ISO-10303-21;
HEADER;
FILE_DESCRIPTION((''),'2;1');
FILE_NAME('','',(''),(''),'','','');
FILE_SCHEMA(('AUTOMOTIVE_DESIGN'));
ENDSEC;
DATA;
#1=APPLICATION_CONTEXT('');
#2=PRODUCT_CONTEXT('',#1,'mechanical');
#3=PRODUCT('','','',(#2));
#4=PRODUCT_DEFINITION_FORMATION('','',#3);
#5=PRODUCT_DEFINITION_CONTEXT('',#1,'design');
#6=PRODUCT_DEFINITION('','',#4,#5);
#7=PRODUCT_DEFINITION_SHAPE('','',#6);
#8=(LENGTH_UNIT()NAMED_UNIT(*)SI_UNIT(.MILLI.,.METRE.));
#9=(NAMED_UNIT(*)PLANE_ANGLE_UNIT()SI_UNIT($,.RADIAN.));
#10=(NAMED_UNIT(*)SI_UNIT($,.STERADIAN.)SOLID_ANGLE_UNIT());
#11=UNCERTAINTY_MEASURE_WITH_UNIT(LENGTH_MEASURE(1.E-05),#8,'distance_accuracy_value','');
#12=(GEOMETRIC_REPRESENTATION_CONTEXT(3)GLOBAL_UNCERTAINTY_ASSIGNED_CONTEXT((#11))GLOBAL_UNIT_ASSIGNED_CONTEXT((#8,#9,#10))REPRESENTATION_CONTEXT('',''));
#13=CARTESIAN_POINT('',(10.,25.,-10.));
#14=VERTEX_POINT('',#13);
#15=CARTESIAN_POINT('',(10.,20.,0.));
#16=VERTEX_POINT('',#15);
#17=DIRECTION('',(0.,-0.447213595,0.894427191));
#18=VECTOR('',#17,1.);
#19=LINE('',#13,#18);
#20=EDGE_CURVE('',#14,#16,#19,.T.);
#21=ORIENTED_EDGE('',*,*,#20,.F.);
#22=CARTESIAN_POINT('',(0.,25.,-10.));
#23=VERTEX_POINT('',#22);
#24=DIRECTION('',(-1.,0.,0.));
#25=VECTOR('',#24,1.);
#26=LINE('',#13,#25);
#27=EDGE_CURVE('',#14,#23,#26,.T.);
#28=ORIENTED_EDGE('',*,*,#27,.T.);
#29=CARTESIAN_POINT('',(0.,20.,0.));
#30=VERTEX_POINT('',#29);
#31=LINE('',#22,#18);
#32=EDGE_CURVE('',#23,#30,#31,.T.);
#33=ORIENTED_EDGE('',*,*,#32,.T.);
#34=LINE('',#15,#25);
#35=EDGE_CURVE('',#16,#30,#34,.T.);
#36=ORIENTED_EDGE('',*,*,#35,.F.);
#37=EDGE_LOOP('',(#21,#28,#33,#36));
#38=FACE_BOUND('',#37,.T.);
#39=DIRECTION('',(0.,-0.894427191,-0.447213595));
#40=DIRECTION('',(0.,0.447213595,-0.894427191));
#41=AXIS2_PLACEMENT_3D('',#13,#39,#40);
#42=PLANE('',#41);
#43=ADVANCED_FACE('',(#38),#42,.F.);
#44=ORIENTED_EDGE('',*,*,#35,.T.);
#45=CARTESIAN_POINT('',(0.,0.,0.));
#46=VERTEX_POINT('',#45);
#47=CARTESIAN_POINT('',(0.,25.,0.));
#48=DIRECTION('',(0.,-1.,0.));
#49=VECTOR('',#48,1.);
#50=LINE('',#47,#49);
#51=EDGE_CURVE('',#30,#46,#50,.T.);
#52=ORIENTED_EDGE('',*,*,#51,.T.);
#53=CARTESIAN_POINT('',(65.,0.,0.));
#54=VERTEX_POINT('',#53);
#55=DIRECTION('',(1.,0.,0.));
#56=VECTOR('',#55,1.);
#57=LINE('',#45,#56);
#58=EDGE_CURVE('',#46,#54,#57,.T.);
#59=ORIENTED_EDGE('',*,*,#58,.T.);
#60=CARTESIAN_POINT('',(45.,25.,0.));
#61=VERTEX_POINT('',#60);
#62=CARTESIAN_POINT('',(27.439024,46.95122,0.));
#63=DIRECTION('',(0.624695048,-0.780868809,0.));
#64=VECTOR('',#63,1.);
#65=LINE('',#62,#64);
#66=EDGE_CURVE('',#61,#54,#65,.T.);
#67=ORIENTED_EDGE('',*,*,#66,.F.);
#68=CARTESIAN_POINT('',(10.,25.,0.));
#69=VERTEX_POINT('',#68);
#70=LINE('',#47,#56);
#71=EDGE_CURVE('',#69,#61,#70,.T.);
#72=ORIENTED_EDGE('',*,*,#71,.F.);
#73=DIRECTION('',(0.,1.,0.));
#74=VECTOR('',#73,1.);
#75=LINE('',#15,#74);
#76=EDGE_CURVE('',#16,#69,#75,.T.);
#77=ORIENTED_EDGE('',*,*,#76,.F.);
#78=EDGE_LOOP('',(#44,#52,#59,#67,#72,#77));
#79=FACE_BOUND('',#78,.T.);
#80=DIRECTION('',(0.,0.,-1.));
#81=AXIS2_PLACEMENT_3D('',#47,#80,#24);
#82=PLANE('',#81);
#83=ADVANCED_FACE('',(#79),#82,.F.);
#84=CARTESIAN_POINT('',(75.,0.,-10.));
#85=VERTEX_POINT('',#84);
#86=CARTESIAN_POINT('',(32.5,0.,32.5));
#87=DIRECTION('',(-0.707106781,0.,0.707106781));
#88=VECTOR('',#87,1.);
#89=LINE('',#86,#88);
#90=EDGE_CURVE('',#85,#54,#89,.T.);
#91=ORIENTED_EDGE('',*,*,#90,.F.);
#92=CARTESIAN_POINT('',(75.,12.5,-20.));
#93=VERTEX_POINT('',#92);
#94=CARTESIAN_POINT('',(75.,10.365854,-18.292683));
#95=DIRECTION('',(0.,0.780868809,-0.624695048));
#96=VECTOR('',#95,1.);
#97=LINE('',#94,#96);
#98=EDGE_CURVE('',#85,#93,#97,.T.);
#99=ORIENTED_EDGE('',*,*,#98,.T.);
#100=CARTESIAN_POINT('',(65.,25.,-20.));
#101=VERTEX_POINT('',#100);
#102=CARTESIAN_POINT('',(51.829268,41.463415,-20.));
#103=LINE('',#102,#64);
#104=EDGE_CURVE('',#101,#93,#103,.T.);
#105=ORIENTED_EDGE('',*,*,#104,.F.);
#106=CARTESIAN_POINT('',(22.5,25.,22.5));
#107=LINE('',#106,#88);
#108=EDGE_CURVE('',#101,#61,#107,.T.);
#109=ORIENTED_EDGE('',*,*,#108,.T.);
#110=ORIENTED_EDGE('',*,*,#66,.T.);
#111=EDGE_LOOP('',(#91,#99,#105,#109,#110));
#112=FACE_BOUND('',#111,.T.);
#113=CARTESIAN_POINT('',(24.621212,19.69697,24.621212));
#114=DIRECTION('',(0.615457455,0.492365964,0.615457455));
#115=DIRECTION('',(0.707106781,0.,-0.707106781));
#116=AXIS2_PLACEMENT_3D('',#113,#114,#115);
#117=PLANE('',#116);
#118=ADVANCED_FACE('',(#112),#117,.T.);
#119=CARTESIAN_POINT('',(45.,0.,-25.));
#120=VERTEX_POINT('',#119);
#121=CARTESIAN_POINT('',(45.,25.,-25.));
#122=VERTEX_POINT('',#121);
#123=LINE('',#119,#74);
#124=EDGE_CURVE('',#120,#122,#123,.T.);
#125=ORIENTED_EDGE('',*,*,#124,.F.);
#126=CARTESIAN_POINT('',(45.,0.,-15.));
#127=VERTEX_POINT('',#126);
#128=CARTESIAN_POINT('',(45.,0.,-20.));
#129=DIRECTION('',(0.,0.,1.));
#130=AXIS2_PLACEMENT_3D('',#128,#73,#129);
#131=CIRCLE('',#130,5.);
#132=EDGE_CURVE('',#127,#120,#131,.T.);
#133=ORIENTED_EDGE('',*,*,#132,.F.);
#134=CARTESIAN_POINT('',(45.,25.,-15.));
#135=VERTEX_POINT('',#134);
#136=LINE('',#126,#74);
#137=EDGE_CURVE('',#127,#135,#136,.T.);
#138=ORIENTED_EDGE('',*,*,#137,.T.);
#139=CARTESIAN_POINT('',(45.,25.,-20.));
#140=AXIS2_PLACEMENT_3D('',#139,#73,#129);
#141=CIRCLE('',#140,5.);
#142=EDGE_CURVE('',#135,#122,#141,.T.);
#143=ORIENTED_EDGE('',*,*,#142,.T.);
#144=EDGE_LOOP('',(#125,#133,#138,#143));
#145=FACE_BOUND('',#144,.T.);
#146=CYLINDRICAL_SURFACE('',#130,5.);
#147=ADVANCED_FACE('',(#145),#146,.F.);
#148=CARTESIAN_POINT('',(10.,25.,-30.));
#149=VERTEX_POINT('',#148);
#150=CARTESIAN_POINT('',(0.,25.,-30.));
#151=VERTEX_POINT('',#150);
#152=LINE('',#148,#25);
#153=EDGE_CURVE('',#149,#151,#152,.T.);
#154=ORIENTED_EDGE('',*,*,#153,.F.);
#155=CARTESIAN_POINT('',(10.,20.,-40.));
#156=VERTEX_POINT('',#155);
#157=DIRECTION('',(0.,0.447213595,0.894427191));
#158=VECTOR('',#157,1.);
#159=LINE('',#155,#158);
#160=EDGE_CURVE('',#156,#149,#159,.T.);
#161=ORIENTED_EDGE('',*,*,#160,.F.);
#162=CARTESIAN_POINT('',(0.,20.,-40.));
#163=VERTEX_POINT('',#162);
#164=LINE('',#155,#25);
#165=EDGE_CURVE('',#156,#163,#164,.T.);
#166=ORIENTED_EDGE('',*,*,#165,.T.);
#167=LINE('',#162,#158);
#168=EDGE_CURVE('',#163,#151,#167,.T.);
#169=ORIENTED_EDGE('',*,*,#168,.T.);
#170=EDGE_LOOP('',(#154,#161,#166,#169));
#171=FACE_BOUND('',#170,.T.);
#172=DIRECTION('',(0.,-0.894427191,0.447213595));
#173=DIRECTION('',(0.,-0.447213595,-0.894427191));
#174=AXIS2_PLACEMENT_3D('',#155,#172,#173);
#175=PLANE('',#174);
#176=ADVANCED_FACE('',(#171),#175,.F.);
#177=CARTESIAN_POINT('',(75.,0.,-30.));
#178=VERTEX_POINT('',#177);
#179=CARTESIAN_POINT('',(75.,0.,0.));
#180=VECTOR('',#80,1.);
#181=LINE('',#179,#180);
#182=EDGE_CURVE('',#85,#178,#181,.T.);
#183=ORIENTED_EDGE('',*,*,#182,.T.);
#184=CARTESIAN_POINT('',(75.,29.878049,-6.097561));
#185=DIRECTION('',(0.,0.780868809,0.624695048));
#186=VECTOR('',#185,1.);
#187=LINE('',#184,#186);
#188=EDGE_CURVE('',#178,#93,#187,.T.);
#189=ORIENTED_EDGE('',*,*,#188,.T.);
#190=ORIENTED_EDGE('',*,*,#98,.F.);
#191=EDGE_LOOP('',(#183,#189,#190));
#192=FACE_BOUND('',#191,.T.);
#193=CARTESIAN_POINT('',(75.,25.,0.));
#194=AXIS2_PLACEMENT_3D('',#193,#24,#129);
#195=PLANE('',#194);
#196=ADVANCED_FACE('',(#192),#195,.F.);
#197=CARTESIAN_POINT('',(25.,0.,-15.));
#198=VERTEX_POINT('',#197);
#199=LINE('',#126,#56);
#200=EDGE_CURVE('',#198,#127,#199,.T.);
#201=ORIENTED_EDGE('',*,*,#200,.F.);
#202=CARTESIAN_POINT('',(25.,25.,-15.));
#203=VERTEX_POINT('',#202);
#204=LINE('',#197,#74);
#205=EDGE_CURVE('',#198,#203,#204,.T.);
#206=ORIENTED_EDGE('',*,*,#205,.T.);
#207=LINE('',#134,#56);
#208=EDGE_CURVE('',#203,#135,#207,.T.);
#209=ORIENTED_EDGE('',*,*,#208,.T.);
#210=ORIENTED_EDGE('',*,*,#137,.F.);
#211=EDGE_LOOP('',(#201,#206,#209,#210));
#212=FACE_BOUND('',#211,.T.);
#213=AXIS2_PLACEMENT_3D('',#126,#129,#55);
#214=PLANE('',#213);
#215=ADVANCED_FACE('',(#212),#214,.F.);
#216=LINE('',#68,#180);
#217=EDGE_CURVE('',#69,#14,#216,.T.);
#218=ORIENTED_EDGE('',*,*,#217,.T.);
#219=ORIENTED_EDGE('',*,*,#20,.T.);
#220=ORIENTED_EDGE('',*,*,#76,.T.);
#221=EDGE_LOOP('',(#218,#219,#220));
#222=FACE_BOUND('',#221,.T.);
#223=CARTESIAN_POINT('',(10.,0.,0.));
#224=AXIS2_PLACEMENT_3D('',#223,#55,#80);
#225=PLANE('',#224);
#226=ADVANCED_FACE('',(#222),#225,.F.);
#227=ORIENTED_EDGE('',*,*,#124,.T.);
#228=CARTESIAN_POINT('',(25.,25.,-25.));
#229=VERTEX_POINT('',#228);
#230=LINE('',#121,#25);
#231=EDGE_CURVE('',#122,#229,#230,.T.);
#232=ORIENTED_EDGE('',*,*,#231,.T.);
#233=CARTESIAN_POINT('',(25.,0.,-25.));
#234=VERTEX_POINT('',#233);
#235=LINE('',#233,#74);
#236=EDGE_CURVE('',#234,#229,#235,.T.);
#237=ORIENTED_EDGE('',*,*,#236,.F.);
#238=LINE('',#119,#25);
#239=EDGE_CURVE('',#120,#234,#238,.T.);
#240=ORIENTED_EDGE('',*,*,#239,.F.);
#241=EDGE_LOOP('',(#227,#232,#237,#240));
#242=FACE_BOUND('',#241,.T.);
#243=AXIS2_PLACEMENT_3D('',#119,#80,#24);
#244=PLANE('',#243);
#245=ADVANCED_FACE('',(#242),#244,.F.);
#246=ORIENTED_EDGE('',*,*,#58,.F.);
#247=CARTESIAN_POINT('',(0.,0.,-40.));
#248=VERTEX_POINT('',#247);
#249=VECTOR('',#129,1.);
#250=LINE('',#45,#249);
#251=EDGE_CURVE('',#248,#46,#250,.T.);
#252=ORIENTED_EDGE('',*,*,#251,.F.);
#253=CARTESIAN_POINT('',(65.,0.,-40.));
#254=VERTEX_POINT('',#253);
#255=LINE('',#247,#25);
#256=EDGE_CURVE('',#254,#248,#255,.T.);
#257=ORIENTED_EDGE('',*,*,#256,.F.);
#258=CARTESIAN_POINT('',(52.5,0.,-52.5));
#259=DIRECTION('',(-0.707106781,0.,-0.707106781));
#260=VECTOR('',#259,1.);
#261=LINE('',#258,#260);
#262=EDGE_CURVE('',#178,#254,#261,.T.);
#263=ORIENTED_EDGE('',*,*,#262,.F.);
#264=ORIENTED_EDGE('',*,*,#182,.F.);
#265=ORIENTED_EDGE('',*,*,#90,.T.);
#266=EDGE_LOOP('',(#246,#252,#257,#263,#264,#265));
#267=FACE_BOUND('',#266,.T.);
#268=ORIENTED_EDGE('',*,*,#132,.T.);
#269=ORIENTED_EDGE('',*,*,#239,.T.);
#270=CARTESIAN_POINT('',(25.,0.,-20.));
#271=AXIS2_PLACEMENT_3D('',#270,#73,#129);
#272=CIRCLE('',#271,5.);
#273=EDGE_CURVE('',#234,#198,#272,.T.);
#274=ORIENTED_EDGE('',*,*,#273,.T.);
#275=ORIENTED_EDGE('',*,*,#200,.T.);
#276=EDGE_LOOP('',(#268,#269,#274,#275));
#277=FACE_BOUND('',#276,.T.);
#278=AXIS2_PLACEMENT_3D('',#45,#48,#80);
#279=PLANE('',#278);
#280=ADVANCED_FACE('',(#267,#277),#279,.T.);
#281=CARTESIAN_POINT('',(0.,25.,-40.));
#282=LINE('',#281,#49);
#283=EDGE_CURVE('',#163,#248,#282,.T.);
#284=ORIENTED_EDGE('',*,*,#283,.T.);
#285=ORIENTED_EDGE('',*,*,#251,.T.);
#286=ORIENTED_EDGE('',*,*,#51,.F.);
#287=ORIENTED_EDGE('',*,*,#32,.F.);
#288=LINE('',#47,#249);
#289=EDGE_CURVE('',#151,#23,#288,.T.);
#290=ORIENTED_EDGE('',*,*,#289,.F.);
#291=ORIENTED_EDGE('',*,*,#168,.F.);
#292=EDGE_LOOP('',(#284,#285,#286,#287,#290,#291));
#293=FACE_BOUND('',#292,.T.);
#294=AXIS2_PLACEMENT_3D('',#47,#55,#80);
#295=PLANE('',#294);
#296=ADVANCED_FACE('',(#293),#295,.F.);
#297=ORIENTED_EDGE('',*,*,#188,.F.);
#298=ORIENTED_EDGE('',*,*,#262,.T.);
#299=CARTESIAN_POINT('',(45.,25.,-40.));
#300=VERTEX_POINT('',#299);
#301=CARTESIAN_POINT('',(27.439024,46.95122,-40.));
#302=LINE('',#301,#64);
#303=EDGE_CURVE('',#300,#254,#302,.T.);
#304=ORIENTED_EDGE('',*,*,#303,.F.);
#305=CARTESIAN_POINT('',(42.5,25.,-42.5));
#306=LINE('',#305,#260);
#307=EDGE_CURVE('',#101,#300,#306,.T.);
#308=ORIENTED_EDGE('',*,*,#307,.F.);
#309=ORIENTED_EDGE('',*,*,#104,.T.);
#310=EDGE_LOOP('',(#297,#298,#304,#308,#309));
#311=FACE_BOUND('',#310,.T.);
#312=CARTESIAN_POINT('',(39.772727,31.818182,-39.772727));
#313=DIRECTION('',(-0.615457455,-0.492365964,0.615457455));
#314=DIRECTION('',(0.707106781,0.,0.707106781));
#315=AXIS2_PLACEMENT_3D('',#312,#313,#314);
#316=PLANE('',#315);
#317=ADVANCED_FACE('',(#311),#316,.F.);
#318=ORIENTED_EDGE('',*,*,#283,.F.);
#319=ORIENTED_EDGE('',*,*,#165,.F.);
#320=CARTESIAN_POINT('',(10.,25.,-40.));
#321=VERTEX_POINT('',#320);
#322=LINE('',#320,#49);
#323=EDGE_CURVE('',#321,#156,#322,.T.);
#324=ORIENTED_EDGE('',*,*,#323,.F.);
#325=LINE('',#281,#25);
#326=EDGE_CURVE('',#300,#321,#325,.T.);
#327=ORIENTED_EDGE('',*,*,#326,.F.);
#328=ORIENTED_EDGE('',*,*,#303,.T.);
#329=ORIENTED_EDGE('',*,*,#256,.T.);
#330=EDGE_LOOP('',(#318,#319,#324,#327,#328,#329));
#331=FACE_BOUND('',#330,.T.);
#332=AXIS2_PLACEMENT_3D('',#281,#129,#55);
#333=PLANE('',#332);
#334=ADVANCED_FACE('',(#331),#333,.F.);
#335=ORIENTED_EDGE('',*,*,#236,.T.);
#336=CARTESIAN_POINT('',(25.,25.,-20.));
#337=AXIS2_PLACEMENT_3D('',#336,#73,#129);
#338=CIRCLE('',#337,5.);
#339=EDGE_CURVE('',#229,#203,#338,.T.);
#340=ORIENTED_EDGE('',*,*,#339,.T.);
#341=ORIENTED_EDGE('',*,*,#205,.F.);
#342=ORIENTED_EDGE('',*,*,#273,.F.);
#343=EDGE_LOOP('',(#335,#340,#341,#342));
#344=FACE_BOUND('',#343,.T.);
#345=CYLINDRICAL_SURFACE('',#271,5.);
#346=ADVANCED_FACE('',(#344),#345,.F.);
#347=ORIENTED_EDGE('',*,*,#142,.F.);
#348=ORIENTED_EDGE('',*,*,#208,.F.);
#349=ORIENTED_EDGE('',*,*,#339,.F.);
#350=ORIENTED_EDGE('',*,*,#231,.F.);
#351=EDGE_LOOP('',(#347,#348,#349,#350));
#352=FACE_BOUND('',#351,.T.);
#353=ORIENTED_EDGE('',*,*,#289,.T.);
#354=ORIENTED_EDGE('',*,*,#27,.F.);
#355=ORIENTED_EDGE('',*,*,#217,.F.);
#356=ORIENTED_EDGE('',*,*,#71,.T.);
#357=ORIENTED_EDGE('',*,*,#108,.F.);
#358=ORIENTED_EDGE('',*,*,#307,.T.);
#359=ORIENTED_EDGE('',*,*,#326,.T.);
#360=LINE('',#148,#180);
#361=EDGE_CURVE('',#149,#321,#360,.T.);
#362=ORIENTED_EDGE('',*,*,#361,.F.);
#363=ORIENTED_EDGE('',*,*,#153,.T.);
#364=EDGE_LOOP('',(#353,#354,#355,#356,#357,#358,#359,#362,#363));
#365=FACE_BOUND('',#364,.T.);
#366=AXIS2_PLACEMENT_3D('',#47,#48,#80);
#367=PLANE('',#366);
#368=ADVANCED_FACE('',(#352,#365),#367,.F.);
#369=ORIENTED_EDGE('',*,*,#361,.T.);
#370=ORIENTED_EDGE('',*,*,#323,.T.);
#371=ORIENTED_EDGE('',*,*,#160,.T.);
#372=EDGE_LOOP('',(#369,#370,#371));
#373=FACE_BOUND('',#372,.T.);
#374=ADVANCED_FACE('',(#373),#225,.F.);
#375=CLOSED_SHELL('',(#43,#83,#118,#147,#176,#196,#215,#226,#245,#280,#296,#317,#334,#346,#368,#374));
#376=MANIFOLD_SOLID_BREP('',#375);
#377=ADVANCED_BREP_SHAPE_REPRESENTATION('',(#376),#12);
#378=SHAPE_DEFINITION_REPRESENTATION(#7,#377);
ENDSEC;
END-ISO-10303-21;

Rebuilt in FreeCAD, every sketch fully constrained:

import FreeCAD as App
import Part
import Sketcher

V = App.Vector

doc = App.newDocument("Part")
body = doc.addObject("PartDesign::Body", "Body")

sketch1 = doc.addObject("Sketcher::SketchObject", "Sketch")
body.addObject(sketch1)
sketch1.AttachmentSupport = (doc.XZ_Plane, [""])
sketch1.MapMode = "FlatFace"
sketch1.addGeometry([
    Part.LineSegment(V(0, -40, 0), V(0, 0, 0)),
    Part.LineSegment(V(0, 0, 0), V(75, 0, 0)),
    Part.LineSegment(V(75, 0, 0), V(75, -40, 0)),
    Part.LineSegment(V(75, -40, 0), V(0, -40, 0)),
], False)
sketch1.addConstraint([
    Sketcher.Constraint("Coincident", 0, 2, 1, 1),
    Sketcher.Constraint("Coincident", 1, 2, 2, 1),
    Sketcher.Constraint("Coincident", 2, 2, 3, 1),
    Sketcher.Constraint("Coincident", 3, 2, 0, 1),
    Sketcher.Constraint("Vertical", 0),
    Sketcher.Constraint("Horizontal", 1),
    Sketcher.Constraint("Vertical", 2),
    Sketcher.Constraint("Horizontal", 3),
    Sketcher.Constraint("Coincident", 0, 2, -1, 1),
    Sketcher.Constraint("DistanceX", 1, 1, 1, 2, 75.0),
    Sketcher.Constraint("DistanceY", 0, 1, 0, 2, 40.0),
])
pad1 = doc.addObject("PartDesign::Pad", "Pad")
body.addObject(pad1)
pad1.Profile = sketch1
pad1.Length = 25
pad1.Reversed = True

sketch2 = doc.addObject("Sketcher::SketchObject", "Sketch001")
body.addObject(sketch2)
sketch2.Placement = App.Placement(V(24.621212, 19.69697, 24.621212), App.Rotation(V(-0.48059153, -0.384473224, 0.788170109), V(-0.624695047, 0.780868809, 0), V(-0.615457455, -0.492365964, -0.615457455), "ZXY"))
sketch2.addGeometry([
    Part.LineSegment(V(-85, -4, 0), V(-85, -54, 0)),
    Part.LineSegment(V(-85, -54, 0), V(-28, -54, 0)),
    Part.LineSegment(V(-28, -54, 0), V(-28, -4, 0)),
    Part.LineSegment(V(-28, -4, 0), V(-85, -4, 0)),
], False)
sketch2.addConstraint([
    Sketcher.Constraint("Coincident", 0, 2, 1, 1),
    Sketcher.Constraint("Coincident", 1, 2, 2, 1),
    Sketcher.Constraint("Coincident", 2, 2, 3, 1),
    Sketcher.Constraint("Coincident", 3, 2, 0, 1),
    Sketcher.Constraint("Vertical", 0),
    Sketcher.Constraint("Horizontal", 1),
    Sketcher.Constraint("Vertical", 2),
    Sketcher.Constraint("Horizontal", 3),
    Sketcher.Constraint("DistanceX", 1, 2, -1, 1, 27.915201),
    Sketcher.Constraint("DistanceY", 2, 2, -1, 1, 4.328399),
    Sketcher.Constraint("DistanceX", 1, 1, 1, 2, 56.924135),
    Sketcher.Constraint("DistanceY", 0, 2, 0, 1, 49.860042),
])
pocket1 = doc.addObject("PartDesign::Pocket", "Pocket")
body.addObject(pocket1)
pocket1.Profile = sketch2
pocket1.Type = "ThroughAll"

sketch3 = doc.addObject("Sketcher::SketchObject", "Sketch002")
body.addObject(sketch3)
sketch3.Placement = App.Placement(V(39.772727, 31.818182, -39.772727), App.Rotation(V(-0.48059153, -0.384473224, -0.788170109), V(-0.624695047, 0.780868809, 0), V(0.615457455, 0.492365964, -0.615457455), "ZXY"))
sketch3.addGeometry([
    Part.LineSegment(V(-59, -5, 0), V(-59, -63, 0)),
    Part.LineSegment(V(-59, -63, 0), V(7, -63, 0)),
    Part.LineSegment(V(7, -63, 0), V(7, -5, 0)),
    Part.LineSegment(V(7, -5, 0), V(-59, -5, 0)),
], False)
sketch3.addConstraint([
    Sketcher.Constraint("Coincident", 0, 2, 1, 1),
    Sketcher.Constraint("Coincident", 1, 2, 2, 1),
    Sketcher.Constraint("Coincident", 2, 2, 3, 1),
    Sketcher.Constraint("Coincident", 3, 2, 0, 1),
    Sketcher.Constraint("Vertical", 0),
    Sketcher.Constraint("Horizontal", 1),
    Sketcher.Constraint("Vertical", 2),
    Sketcher.Constraint("Horizontal", 3),
    Sketcher.Constraint("DistanceX", 1, 1, 1, 2, 66.205259),
    Sketcher.Constraint("DistanceY", 0, 2, 0, 1, 57.927204),
    Sketcher.Constraint("DistanceX", 0, 2, -1, 1, 58.767389),
    Sketcher.Constraint("DistanceY", 0, 2, -1, 1, 63.217136),
])
pocket2 = doc.addObject("PartDesign::Pocket", "Pocket001")
body.addObject(pocket2)
pocket2.Profile = sketch3
pocket2.Type = "ThroughAll"
pocket2.Reversed = True

sketch4 = doc.addObject("Sketcher::SketchObject", "Sketch003")
body.addObject(sketch4)
sketch4.AttachmentSupport = (doc.YZ_Plane, [""])
sketch4.MapMode = "FlatFace"
sketch4.addGeometry([
    Part.LineSegment(V(25, -10, 0), V(20, 0, 0)),
    Part.LineSegment(V(20, 0, 0), V(25, 0, 0)),
    Part.LineSegment(V(25, 0, 0), V(25, -10, 0)),
], False)
sketch4.addConstraint([
    Sketcher.Constraint("Coincident", 0, 2, 1, 1),
    Sketcher.Constraint("Coincident", 1, 2, 2, 1),
    Sketcher.Constraint("Coincident", 2, 2, 0, 1),
    Sketcher.Constraint("Horizontal", 1),
    Sketcher.Constraint("Vertical", 2),
    Sketcher.Constraint("PointOnObject", 0, 2, -1),
    Sketcher.Constraint("DistanceX", 1, 1, 1, 2, 5.0),
    Sketcher.Constraint("DistanceY", 2, 2, 2, 1, 10.0),
    Sketcher.Constraint("DistanceX", -1, 1, 0, 2, 20.0),
])
pocket3 = doc.addObject("PartDesign::Pocket", "Pocket002")
body.addObject(pocket3)
pocket3.Profile = sketch4
pocket3.Length = 10
pocket3.Reversed = True

sketch5 = doc.addObject("Sketcher::SketchObject", "Sketch004")
body.addObject(sketch5)
sketch5.AttachmentSupport = (doc.YZ_Plane, [""])
sketch5.MapMode = "FlatFace"
sketch5.addGeometry([
    Part.LineSegment(V(20, -40, 0), V(25, -30, 0)),
    Part.LineSegment(V(25, -30, 0), V(25, -40, 0)),
    Part.LineSegment(V(25, -40, 0), V(20, -40, 0)),
], False)
sketch5.addConstraint([
    Sketcher.Constraint("Coincident", 0, 2, 1, 1),
    Sketcher.Constraint("Coincident", 1, 2, 2, 1),
    Sketcher.Constraint("Coincident", 2, 2, 0, 1),
    Sketcher.Constraint("Vertical", 1),
    Sketcher.Constraint("Horizontal", 2),
    Sketcher.Constraint("DistanceX", 2, 2, 2, 1, 5.0),
    Sketcher.Constraint("DistanceY", 1, 2, 1, 1, 10.0),
    Sketcher.Constraint("DistanceX", -1, 1, 0, 2, 25.0),
    Sketcher.Constraint("DistanceY", 0, 2, -1, 1, 30.0),
])
pocket4 = doc.addObject("PartDesign::Pocket", "Pocket003")
body.addObject(pocket4)
pocket4.Profile = sketch5
pocket4.Length = 10
pocket4.Reversed = True

sketch6 = doc.addObject("Sketcher::SketchObject", "Sketch005")
body.addObject(sketch6)
sketch6.AttachmentSupport = (doc.XZ_Plane, [""])
sketch6.MapMode = "FlatFace"
sketch6.AttachmentOffset = App.Placement(V(0, 0, -25), App.Rotation())
sketch6.addGeometry(Part.Circle(V(25, -20, 0), V(0, 0, 1), 5), False)
sketch6.addConstraint([
    Sketcher.Constraint("Diameter", 0, 10.0),
    Sketcher.Constraint("DistanceX", -1, 1, 0, 3, 25.0),
    Sketcher.Constraint("DistanceY", 0, 3, -1, 1, 20.0),
])
pocket5 = doc.addObject("PartDesign::Pocket", "Pocket004")
body.addObject(pocket5)
pocket5.Profile = sketch6
pocket5.Type = "ThroughAll"
pocket5.Reversed = True

sketch7 = doc.addObject("Sketcher::SketchObject", "Sketch006")
body.addObject(sketch7)
sketch7.AttachmentSupport = (doc.XZ_Plane, [""])
sketch7.MapMode = "FlatFace"
sketch7.AttachmentOffset = App.Placement(V(0, 0, -25), App.Rotation())
sketch7.addGeometry(Part.Circle(V(45, -20, 0), V(0, 0, 1), 5), False)
sketch7.addConstraint([
    Sketcher.Constraint("Diameter", 0, 10.0),
    Sketcher.Constraint("DistanceX", -1, 1, 0, 3, 45.0),
    Sketcher.Constraint("DistanceY", 0, 3, -1, 1, 20.0),
])
pocket6 = doc.addObject("PartDesign::Pocket", "Pocket005")
body.addObject(pocket6)
pocket6.Profile = sketch7
pocket6.Type = "ThroughAll"
pocket6.Reversed = True

sketch8 = doc.addObject("Sketcher::SketchObject", "Sketch007")
body.addObject(sketch8)
sketch8.AttachmentSupport = (doc.XZ_Plane, [""])
sketch8.MapMode = "FlatFace"
sketch8.AttachmentOffset = App.Placement(V(0, 0, -25), App.Rotation())
sketch8.addGeometry([
    Part.LineSegment(V(25, -25, 0), V(25, -15, 0)),
    Part.LineSegment(V(25, -15, 0), V(45, -15, 0)),
    Part.LineSegment(V(45, -15, 0), V(45, -25, 0)),
    Part.LineSegment(V(45, -25, 0), V(25, -25, 0)),
], False)
sketch8.addConstraint([
    Sketcher.Constraint("Coincident", 0, 2, 1, 1),
    Sketcher.Constraint("Coincident", 1, 2, 2, 1),
    Sketcher.Constraint("Coincident", 2, 2, 3, 1),
    Sketcher.Constraint("Coincident", 3, 2, 0, 1),
    Sketcher.Constraint("Vertical", 0),
    Sketcher.Constraint("Horizontal", 1),
    Sketcher.Constraint("Vertical", 2),
    Sketcher.Constraint("Horizontal", 3),
    Sketcher.Constraint("DistanceX", 1, 1, 1, 2, 20.0),
    Sketcher.Constraint("DistanceY", 0, 1, 0, 2, 10.0),
    Sketcher.Constraint("DistanceX", -1, 1, 0, 2, 25.0),
    Sketcher.Constraint("DistanceY", 0, 2, -1, 1, 15.0),
])
pocket7 = doc.addObject("PartDesign::Pocket", "Pocket006")
body.addObject(pocket7)
pocket7.Profile = sketch8
pocket7.Type = "ThroughAll"
pocket7.Reversed = True

doc.recompute()
